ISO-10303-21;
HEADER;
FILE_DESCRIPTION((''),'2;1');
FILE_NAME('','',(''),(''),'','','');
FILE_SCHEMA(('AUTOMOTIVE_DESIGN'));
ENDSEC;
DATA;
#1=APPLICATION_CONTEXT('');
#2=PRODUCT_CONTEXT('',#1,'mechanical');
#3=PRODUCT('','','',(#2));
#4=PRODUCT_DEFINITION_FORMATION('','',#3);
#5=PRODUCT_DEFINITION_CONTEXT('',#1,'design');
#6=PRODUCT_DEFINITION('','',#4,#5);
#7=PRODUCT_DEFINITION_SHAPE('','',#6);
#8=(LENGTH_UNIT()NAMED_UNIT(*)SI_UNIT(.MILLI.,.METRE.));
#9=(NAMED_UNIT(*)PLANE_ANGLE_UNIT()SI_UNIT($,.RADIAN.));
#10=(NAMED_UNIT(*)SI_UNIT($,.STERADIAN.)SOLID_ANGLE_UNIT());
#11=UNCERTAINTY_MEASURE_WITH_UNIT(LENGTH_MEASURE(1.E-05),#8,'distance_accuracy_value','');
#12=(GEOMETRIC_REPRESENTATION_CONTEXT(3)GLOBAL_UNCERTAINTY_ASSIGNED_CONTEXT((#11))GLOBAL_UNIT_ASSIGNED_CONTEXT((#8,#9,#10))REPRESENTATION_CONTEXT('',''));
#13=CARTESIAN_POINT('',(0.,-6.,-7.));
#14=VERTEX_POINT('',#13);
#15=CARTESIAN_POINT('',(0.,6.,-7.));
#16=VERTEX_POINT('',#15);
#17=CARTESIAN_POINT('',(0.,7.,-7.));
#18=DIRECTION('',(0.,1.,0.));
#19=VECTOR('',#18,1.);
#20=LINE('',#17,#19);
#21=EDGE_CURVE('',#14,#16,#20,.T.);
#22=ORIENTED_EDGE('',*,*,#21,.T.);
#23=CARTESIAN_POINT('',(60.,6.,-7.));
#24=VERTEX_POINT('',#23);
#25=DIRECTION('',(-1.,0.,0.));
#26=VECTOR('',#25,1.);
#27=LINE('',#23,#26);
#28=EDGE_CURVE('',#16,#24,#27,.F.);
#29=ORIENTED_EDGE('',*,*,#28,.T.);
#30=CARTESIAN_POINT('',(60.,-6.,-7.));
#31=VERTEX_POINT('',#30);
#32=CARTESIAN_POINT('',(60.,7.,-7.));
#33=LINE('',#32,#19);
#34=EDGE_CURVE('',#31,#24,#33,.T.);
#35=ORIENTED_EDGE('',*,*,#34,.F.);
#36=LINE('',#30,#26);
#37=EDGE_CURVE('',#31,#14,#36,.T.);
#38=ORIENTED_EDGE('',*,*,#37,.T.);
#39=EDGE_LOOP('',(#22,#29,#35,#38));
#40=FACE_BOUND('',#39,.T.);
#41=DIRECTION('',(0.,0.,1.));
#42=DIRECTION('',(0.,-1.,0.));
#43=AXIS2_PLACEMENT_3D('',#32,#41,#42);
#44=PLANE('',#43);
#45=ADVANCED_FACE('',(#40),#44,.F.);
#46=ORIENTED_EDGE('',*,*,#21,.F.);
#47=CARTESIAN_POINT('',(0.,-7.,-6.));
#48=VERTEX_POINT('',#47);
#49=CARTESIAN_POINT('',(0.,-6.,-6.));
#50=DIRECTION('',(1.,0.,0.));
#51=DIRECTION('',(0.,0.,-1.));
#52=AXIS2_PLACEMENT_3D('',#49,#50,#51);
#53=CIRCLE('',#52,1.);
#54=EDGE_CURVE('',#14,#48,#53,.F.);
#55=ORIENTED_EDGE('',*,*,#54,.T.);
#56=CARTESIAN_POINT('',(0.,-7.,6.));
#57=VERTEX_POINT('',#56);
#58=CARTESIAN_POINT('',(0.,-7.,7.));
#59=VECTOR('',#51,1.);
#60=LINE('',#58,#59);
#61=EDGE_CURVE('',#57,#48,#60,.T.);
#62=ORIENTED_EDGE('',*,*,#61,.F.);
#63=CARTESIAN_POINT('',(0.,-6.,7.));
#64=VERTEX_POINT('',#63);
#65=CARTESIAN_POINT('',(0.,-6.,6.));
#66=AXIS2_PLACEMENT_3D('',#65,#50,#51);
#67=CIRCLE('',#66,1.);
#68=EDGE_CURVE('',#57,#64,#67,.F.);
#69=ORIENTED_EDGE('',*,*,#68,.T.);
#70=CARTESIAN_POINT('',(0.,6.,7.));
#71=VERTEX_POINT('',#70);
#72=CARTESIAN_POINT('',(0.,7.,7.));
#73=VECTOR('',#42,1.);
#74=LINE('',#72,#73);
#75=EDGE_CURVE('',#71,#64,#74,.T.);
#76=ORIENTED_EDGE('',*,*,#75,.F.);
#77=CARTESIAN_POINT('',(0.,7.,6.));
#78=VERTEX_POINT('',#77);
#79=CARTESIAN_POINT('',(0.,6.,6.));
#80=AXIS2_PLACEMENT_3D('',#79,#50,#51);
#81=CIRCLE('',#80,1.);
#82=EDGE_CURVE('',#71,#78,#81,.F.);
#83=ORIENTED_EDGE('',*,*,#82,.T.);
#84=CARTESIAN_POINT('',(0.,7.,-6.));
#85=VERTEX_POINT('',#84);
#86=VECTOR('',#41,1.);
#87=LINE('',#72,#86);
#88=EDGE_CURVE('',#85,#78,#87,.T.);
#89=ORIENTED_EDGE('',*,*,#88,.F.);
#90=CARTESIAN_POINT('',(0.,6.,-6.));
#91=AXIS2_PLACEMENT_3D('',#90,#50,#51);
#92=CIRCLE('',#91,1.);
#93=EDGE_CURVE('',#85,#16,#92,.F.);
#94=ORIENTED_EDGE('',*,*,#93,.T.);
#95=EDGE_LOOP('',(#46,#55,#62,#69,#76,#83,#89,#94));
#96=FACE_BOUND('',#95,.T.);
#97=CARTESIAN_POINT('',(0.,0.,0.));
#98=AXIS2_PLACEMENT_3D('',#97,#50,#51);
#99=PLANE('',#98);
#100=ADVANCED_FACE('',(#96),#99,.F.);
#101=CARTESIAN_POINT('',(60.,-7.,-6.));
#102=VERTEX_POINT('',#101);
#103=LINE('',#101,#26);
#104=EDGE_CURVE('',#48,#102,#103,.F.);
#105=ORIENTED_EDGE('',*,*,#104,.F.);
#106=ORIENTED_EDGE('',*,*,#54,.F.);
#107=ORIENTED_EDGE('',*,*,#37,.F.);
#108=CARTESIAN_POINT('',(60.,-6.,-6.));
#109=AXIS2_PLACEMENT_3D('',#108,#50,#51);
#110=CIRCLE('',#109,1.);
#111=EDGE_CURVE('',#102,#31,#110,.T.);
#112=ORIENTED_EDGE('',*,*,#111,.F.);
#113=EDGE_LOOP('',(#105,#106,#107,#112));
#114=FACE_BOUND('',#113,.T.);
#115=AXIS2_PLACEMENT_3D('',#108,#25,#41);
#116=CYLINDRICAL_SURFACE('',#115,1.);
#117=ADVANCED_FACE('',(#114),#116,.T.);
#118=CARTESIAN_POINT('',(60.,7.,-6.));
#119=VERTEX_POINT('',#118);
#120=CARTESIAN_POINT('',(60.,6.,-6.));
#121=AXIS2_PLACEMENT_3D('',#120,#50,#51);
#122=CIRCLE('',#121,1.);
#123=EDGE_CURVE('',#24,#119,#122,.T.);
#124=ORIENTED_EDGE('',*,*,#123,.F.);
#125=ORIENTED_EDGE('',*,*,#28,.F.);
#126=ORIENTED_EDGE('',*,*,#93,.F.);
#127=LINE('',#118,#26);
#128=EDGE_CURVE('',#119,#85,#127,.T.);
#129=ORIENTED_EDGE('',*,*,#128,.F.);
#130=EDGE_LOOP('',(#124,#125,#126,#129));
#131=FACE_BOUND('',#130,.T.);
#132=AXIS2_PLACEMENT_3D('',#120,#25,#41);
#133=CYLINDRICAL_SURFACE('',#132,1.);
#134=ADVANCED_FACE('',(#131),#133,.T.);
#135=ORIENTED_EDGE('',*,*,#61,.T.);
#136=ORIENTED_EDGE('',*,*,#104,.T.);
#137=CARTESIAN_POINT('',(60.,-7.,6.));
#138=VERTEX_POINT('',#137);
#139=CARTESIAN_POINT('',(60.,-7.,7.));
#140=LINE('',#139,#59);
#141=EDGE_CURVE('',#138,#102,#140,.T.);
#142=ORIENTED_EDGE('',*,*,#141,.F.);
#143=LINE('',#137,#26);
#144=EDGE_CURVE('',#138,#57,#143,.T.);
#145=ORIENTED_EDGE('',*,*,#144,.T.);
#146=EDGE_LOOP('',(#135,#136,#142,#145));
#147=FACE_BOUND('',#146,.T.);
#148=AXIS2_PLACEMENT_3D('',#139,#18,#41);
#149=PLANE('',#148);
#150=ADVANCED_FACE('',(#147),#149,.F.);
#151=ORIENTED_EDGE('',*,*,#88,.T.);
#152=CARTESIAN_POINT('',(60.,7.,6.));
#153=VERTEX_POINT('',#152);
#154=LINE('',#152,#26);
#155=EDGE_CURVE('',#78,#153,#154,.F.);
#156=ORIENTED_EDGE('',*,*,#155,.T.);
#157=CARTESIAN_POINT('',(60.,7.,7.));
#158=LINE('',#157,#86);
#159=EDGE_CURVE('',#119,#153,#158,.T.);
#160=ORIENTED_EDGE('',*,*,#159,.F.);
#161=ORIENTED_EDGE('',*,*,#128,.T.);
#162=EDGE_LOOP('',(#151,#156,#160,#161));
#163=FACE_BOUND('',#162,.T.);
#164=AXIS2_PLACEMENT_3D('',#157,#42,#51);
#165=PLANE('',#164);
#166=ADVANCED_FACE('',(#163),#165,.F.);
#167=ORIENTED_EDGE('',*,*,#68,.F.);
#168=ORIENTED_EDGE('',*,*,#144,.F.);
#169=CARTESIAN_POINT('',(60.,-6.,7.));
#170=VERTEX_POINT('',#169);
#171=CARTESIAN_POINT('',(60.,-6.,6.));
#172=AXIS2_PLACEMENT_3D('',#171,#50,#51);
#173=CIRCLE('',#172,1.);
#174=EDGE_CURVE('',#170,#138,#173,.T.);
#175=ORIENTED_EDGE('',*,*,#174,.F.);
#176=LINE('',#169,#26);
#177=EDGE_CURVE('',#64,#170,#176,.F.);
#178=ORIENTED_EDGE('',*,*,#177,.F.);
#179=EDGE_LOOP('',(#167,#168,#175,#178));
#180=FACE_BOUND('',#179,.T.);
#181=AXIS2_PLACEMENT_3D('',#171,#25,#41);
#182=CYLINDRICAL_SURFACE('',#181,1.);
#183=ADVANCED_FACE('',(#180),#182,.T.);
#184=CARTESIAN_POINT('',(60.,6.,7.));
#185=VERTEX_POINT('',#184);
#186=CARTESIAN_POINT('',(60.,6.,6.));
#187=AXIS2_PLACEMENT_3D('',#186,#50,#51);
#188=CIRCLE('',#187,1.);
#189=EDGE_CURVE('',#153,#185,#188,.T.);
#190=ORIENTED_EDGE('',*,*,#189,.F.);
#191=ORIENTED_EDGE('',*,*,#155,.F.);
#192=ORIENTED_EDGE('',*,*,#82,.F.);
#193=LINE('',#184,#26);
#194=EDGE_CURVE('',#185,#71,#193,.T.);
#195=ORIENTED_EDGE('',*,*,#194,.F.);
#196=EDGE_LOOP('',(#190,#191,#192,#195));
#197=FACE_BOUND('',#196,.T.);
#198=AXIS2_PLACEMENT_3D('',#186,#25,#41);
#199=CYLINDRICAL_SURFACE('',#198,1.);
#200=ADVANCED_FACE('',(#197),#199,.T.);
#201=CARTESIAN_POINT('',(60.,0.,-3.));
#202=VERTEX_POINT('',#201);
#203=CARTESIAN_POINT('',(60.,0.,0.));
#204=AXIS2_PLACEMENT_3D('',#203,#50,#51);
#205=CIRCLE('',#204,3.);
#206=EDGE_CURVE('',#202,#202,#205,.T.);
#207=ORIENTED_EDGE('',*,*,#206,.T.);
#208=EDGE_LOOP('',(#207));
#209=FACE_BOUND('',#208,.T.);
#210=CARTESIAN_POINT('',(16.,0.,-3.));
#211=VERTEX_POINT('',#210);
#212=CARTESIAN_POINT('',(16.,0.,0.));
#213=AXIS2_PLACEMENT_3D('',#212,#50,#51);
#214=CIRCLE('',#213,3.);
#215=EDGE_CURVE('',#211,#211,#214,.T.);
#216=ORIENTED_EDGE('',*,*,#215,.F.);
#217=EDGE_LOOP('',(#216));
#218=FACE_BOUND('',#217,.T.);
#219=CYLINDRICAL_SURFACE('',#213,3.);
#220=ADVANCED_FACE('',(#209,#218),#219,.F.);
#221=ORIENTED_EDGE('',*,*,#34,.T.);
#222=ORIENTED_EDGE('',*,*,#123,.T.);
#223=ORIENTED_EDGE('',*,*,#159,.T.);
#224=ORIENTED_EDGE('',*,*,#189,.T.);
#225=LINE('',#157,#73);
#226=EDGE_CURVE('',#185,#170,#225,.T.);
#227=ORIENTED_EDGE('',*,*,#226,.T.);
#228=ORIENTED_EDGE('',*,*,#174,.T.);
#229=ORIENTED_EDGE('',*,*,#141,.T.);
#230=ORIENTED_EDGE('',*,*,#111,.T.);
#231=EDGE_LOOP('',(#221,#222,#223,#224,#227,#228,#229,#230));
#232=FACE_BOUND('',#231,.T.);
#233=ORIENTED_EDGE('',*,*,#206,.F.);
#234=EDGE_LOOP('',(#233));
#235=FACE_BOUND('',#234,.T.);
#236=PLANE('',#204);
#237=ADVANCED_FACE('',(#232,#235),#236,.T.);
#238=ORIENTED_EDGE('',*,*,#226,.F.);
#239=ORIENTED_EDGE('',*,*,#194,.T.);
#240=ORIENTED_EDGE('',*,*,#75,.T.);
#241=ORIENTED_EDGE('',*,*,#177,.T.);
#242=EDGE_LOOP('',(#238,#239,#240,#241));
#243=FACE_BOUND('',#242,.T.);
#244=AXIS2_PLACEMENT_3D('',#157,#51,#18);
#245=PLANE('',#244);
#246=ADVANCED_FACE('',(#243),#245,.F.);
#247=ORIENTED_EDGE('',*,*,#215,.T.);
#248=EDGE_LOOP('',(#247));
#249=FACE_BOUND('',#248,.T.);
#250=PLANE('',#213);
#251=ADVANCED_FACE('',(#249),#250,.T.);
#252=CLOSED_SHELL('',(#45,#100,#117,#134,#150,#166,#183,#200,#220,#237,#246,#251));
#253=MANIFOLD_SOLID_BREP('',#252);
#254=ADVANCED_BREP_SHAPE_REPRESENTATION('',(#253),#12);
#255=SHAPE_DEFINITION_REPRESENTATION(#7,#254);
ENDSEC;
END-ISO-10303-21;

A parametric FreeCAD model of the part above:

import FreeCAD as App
import Part
import Sketcher

V = App.Vector
Q = App.Units.Quantity


def edges_at(feature, points):
    """Names of the edges that pass closest to the given points."""
    edges = feature.Shape.Edges
    near = lambda p: min(range(len(edges)), key=lambda i: edges[i].distToShape(Part.Vertex(*p))[0])
    return sorted({f"Edge{near(p) + 1}" for p in points})

doc = App.newDocument("Part")
body = doc.addObject("PartDesign::Body", "Body")

# Sketch on YZ plane
sketch1 = body.newObject("Sketcher::SketchObject", "Sketch")
sketch1.AttachmentSupport = (doc.getObject("YZ_Plane"), [""])
sketch1.MapMode = "FlatFace"
sketch1.addGeometry([
    Part.LineSegment(V(7, 7, 0), V(-7, 7, 0)),
    Part.LineSegment(V(-7, 7, 0), V(-7, -7, 0)),
    Part.LineSegment(V(-7, -7, 0), V(7, -7, 0)),
    Part.LineSegment(V(7, -7, 0), V(7, 7, 0)),
], False)
sketch1.addConstraint([
    Sketcher.Constraint("Coincident", 0, 2, 1, 1),
    Sketcher.Constraint("Coincident", 1, 2, 2, 1),
    Sketcher.Constraint("Coincident", 2, 2, 3, 1),
    Sketcher.Constraint("Coincident", 3, 2, 0, 1),
    Sketcher.Constraint("Horizontal", 0),
    Sketcher.Constraint("Vertical", 1),
    Sketcher.Constraint("Horizontal", 2),
    Sketcher.Constraint("Vertical", 3),
    Sketcher.Constraint("Symmetric", 0, 2, 2, 2, -1, 1),
    Sketcher.Constraint("Equal", 2, 1),
    Sketcher.Constraint("DistanceX", 0, 2, 0, 1, Q("14 mm")),
])
pad1 = body.newObject("PartDesign::Pad", "Pad")
pad1.Profile = sketch1
pad1.Length = 60
doc.recompute()

fillet = body.newObject("PartDesign::Fillet", "Fillet")
fillet.Base = (pad1, edges_at(pad1, [
    (30, -7, -7),
    (30, -7, 7),
    (30, 7, 7),
    (30, 7, -7),
]))
fillet.Radius = 1

# Sketch on YZ plane
sketch2 = body.newObject("Sketcher::SketchObject", "Sketch001")
sketch2.AttachmentSupport = (doc.getObject("YZ_Plane"), [""])
sketch2.MapMode = "FlatFace"
sketch2.AttachmentOffset = App.Placement(V(0, 0, 60), App.Rotation())
sketch2.addGeometry(Part.Circle(V(0, 0, 0), V(0, 0, 1), 3), False)
sketch2.addConstraint([
    Sketcher.Constraint("Coincident", 0, 3, -1, 1),
    Sketcher.Constraint("Diameter", 0, Q("6 mm")),
])
pocket1 = body.newObject("PartDesign::Pocket", "Pocket")
pocket1.Profile = sketch2
pocket1.Length = 44

doc.recompute()
